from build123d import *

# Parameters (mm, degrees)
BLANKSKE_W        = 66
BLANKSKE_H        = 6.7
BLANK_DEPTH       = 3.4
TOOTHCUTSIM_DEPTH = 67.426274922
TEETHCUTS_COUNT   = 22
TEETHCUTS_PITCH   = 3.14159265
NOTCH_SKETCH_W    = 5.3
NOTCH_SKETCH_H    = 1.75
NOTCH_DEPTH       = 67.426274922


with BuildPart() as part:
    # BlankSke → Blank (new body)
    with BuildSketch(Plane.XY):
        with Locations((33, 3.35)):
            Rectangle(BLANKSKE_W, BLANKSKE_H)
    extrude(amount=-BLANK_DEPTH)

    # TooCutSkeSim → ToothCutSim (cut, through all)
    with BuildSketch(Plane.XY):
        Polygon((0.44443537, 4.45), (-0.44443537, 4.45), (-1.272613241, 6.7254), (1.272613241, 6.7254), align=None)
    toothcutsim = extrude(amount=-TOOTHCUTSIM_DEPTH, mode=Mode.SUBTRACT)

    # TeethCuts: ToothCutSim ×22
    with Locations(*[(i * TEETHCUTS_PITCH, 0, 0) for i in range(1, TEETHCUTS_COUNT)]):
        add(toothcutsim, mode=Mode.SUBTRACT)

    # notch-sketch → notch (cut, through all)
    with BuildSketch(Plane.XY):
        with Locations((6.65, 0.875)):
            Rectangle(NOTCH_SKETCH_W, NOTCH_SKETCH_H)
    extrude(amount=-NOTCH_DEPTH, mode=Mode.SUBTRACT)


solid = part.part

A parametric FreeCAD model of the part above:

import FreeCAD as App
import Part
import Sketcher

V = App.Vector
Q = App.Units.Quantity


def add_polygon(sketch, points):
    """Adds a closed chain of lines whose ends are joined by coincident constraints."""
    first, n = sketch.GeometryCount, len(points)
    for a, b in zip(points, points[1:] + points[:1]):
        sketch.addGeometry(Part.LineSegment(App.Vector(*a, 0), App.Vector(*b, 0)), False)
    for i in range(n):
        sketch.addConstraint(Sketcher.Constraint("Coincident", first + i, 2, first + (i + 1) % n, 1))

doc = App.newDocument("Part")
body = doc.addObject("PartDesign::Body", "Body")

# Sketch on XY plane
sketch1 = doc.addObject("Sketcher::SketchObject", "Sketch")
body.addObject(sketch1)
sketch1.AttachmentSupport = (doc.XY_Plane, [""])
sketch1.MapMode = "FlatFace"
add_polygon(sketch1, [(0, 7), (0, 0), (66, 0), (66, 7)])  # lines 0-3
sketch1.addConstraint([
    Sketcher.Constraint("Vertical", 0),
    Sketcher.Constraint("Horizontal", 1),
    Sketcher.Constraint("Vertical", 2),
    Sketcher.Constraint("Horizontal", 3),
    Sketcher.Constraint("Coincident", 0, 2, -1, 1),
    Sketcher.Constraint("DistanceX", 1, 1, 1, 2, 66.0),
    Sketcher.Constraint("DistanceY", 0, 2, 0, 1, 6.7),
])
pad1 = doc.addObject("PartDesign::Pad", "Pad")
body.addObject(pad1)
pad1.Profile = sketch1
pad1.Length = 3.4
pad1.Reversed = True

# Sketch on XY plane
sketch2 = doc.addObject("Sketcher::SketchObject", "Sketch001")
body.addObject(sketch2)
sketch2.AttachmentSupport = (doc.XY_Plane, [""])
sketch2.MapMode = "FlatFace"
add_polygon(sketch2, [(-0.4, 4.5), (0.4, 4.5), (1.3, 6.7), (-1.3, 6.7)])  # lines 0-3
sketch2.addConstraint([
    Sketcher.Constraint("Horizontal", 0),
    Sketcher.Constraint("Horizontal", 2),
    Sketcher.Constraint("Equal", 1, 3),
    Sketcher.Constraint("Angle", 1, Q("70 deg")),
    Sketcher.Constraint("DistanceY", -1, 1, 0, 2, 4.45),
    Sketcher.Constraint("DistanceX", 0, 1, 0, 2, 0.888871),
    Sketcher.Constraint("DistanceY", -1, 1, 1, 2, 6.7254),
    Sketcher.Constraint("DistanceX", -1, 1, 0, 2, 0.444435),
])
pocket1 = doc.addObject("PartDesign::Pocket", "Pocket")
body.addObject(pocket1)
pocket1.Profile = sketch2
pocket1.Type = "ThroughAll"
doc.recompute()

linearpattern = doc.addObject("PartDesign::LinearPattern", "LinearPattern")
body.addObject(linearpattern)
linearpattern.Originals = [pocket1]
linearpattern.Direction = (doc.X_Axis, [""])
linearpattern.Mode = "offset"
linearpattern.Offset = 3.141593
linearpattern.Occurrences = 22
body.Tip = linearpattern

# Sketch on XY plane
sketch3 = doc.addObject("Sketcher::SketchObject", "Sketch002")
body.addObject(sketch3)
sketch3.AttachmentSupport = (doc.XY_Plane, [""])
sketch3.MapMode = "FlatFace"
add_polygon(sketch3, [(4, 1.8), (4, 0), (9.3, 0), (9.3, 1.8)])  # lines 0-3
sketch3.addConstraint([
    Sketcher.Constraint("Vertical", 0),
    Sketcher.Constraint("Horizontal", 1),
    Sketcher.Constraint("Vertical", 2),
    Sketcher.Constraint("Horizontal", 3),
    Sketcher.Constraint("PointOnObject", 0, 2, -1),
    Sketcher.Constraint("DistanceX", 1, 1, 1, 2, 5.3),
    Sketcher.Constraint("DistanceX", -1, 1, 0, 2, 4.0),
    Sketcher.Constraint("DistanceY", 0, 2, 0, 1, 1.75),
])
pocket2 = doc.addObject("PartDesign::Pocket", "Pocket001")
body.addObject(pocket2)
pocket2.Profile = sketch3
pocket2.Type = "ThroughAll"

doc.recompute()
